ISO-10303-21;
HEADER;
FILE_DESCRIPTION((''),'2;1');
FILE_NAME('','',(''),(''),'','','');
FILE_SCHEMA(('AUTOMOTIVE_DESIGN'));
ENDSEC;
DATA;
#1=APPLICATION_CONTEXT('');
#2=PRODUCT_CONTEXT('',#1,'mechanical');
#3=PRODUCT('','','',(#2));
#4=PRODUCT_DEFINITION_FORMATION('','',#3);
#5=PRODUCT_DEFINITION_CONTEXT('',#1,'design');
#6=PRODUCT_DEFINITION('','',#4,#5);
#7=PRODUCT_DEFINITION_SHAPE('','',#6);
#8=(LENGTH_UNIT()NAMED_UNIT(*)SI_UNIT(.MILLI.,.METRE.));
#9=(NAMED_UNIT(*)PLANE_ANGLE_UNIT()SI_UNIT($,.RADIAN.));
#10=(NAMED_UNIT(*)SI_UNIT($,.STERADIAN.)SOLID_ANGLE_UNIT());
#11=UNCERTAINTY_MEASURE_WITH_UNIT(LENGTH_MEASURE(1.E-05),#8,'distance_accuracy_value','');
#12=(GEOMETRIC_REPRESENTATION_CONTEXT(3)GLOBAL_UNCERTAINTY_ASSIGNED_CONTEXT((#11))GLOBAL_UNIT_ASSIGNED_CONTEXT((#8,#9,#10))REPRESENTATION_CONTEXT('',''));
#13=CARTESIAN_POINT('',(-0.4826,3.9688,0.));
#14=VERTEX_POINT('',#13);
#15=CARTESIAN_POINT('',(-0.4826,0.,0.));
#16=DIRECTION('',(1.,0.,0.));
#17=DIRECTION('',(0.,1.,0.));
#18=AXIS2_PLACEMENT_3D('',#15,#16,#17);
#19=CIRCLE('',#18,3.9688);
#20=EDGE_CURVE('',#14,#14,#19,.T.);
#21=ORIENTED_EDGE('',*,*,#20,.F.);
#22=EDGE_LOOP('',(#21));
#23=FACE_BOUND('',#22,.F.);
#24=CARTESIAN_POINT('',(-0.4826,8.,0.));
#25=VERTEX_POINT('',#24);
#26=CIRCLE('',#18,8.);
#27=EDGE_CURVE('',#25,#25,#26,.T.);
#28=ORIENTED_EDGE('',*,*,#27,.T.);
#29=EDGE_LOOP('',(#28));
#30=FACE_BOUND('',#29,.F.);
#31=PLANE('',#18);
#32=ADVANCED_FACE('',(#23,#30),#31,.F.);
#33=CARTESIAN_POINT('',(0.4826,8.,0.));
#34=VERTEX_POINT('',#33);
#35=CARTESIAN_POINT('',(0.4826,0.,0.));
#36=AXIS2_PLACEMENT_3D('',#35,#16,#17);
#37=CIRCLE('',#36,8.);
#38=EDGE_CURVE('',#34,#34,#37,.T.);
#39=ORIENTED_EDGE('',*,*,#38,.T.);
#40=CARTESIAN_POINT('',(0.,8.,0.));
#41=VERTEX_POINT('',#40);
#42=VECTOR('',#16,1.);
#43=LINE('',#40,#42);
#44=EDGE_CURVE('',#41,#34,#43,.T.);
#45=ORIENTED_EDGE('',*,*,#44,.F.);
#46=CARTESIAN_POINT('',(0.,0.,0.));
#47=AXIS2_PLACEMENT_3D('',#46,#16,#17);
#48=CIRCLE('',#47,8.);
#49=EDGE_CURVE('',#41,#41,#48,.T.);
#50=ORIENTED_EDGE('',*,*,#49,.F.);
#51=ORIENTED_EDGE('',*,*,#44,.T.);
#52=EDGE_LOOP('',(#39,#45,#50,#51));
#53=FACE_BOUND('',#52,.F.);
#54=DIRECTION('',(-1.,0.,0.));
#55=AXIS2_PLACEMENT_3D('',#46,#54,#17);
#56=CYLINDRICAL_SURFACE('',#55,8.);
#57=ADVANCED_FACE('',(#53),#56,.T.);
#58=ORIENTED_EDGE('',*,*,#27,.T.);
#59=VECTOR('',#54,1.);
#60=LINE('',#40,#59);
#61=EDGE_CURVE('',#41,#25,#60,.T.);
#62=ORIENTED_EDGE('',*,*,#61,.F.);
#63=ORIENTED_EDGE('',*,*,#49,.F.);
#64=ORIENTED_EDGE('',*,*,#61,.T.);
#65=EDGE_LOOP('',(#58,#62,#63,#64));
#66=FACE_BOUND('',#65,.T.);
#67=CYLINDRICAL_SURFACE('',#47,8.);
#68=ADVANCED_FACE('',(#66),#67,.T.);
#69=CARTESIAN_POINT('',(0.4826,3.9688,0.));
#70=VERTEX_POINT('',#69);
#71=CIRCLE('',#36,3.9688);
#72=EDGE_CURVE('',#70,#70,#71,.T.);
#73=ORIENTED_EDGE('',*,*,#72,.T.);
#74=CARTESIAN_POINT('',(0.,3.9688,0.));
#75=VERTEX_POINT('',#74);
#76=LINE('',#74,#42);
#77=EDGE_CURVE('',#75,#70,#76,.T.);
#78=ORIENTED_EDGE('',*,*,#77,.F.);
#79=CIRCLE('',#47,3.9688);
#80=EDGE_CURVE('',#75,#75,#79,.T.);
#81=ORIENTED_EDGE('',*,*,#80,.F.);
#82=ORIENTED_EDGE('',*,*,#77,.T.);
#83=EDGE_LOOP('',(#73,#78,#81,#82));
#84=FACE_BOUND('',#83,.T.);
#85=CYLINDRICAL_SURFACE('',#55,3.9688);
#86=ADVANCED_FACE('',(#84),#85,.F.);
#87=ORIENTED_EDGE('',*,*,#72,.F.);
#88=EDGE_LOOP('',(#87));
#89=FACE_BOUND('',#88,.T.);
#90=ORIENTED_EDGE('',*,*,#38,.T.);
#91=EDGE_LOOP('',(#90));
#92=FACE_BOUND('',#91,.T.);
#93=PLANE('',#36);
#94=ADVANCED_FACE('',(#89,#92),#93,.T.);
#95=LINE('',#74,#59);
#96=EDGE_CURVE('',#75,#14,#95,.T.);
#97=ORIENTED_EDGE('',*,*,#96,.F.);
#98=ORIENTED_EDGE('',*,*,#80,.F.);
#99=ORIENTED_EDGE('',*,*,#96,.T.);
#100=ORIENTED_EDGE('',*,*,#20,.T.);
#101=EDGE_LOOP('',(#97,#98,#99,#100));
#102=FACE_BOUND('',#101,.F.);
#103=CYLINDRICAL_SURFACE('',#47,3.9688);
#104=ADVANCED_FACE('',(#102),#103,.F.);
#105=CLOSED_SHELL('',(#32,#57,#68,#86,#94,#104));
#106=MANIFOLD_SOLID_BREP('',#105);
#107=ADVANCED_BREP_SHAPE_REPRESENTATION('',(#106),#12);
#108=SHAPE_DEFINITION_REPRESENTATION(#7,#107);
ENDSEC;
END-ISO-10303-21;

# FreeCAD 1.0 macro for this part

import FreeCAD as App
import Part
import Sketcher
Q = App.Units.Quantity

doc = App.newDocument("Part")
body = doc.addObject("PartDesign::Body", "Body")

# Sketch on YZ plane
sketch1 = doc.addObject("Sketcher::SketchObject", "Sketch")
body.addObject(sketch1)
sketch1.AttachmentSupport = (doc.YZ_Plane, [""])
sketch1.MapMode = "FlatFace"
sketch1.addGeometry([
    Part.Circle(App.Vector(0, 0, 0), App.Vector(0, 0, 1), 8),
    Part.Circle(App.Vector(0, 0, 0), App.Vector(0, 0, 1), 3.9688),
], False)
sketch1.addConstraint([
    Sketcher.Constraint("Coincident", 0, 3, -1, 1),
    Sketcher.Constraint("Coincident", 1, 3, -1, 1),
    Sketcher.Constraint("Diameter", 1, Q("0.3125 in")),
    Sketcher.Constraint("Diameter", 0, Q("16 mm")),
])
pad1 = doc.addObject("PartDesign::Pad", "Pad")
body.addObject(pad1)
pad1.Profile = sketch1
pad1.Length = Q("0.038 in")
pad1.Midplane = True

doc.recompute()
